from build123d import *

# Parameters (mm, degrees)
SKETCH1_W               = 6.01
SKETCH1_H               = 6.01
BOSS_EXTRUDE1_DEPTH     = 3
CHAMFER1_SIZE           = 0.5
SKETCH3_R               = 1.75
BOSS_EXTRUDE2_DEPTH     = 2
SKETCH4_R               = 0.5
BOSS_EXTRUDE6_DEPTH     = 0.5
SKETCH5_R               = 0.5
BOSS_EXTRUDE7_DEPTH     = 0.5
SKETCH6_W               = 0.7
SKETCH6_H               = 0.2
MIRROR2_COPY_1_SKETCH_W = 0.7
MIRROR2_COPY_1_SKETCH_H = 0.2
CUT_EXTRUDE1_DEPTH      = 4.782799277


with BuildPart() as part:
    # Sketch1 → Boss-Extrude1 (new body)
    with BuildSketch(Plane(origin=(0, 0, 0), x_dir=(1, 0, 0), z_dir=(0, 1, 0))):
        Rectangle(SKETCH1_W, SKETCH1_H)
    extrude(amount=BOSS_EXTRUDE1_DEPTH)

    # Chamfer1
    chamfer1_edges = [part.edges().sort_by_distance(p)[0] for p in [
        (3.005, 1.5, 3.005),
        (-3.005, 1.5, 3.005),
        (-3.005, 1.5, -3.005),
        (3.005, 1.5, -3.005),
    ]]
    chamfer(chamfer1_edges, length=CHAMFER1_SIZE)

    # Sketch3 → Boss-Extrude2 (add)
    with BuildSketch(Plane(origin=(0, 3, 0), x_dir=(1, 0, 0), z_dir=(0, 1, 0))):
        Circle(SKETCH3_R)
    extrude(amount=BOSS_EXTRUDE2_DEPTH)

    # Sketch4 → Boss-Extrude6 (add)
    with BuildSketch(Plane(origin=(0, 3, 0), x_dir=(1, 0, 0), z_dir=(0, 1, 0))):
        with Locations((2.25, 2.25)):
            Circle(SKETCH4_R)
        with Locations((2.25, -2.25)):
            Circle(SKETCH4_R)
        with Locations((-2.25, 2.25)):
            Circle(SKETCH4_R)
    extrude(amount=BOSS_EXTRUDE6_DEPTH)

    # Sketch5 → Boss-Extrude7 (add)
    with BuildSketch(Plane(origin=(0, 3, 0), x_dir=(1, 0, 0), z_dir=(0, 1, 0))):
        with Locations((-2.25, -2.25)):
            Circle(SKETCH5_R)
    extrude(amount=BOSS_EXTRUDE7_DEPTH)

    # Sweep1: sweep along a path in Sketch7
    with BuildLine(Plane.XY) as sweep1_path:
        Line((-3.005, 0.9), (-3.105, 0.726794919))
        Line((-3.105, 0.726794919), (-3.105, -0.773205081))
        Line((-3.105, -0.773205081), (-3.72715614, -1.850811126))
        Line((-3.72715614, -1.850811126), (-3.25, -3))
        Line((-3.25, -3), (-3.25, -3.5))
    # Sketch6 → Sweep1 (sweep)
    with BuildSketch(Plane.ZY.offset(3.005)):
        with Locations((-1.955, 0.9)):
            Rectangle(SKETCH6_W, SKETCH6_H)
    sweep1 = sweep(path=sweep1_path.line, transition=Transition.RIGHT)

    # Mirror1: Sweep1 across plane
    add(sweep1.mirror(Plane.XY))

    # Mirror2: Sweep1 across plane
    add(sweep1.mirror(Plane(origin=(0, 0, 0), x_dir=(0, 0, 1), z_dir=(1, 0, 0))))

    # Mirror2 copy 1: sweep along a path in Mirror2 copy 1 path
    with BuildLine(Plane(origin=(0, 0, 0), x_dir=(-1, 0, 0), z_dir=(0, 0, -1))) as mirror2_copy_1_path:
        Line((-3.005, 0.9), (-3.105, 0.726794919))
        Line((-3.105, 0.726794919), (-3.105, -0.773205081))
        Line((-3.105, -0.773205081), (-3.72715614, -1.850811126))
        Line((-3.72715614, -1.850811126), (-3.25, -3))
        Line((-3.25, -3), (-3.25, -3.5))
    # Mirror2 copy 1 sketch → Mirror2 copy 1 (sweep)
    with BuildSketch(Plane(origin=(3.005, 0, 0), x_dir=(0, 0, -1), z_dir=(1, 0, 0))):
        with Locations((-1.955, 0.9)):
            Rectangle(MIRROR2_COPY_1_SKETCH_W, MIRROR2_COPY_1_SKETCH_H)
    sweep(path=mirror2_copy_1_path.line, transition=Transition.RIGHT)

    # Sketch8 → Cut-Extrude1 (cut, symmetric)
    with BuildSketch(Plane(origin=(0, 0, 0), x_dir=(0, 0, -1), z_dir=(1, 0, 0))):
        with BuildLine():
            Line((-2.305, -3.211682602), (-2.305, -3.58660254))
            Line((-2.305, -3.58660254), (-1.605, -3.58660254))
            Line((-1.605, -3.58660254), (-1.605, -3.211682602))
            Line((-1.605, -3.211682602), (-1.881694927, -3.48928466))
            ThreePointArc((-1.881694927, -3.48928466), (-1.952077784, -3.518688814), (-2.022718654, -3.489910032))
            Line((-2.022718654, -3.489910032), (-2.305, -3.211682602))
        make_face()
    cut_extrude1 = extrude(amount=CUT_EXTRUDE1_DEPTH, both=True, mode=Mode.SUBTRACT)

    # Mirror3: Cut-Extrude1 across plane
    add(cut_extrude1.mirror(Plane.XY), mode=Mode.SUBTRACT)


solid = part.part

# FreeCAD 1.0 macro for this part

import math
import FreeCAD as App
import Part
import Sketcher
from FreeCAD import Vector
Q = App.Units.Quantity


def edges_at(feature, points):
    """Names of the edges that pass closest to the given points."""
    edges = feature.Shape.Edges
    near = lambda p: min(range(len(edges)), key=lambda i: edges[i].distToShape(Part.Vertex(*p))[0])
    return sorted({f"Edge{near(p) + 1}" for p in points})


def add_polygon(sketch, points):
    """Adds a closed chain of lines whose ends are joined by coincident constraints."""
    first, n = sketch.GeometryCount, len(points)
    for a, b in zip(points, points[1:] + points[:1]):
        sketch.addGeometry(Part.LineSegment(App.Vector(*a, 0), App.Vector(*b, 0)), False)
    for i in range(n):
        sketch.addConstraint(Sketcher.Constraint("Coincident", first + i, 2, first + (i + 1) % n, 1))

doc = App.newDocument("Part")
params = doc.addObject("Spreadsheet::Sheet", "Params")
for row, (alias, value) in enumerate([
    ("sketch1_width", "6.01 mm"),
    ("pad1_length", "3 mm"),
    ("chamfer_size", "0.5 mm"),
    ("sketch2_diameter", "3.5 mm"),
    ("pad2_length", "2 mm"),
    ("sketch3_diameter", "1 mm"),
    ("pad3_length", "0.5 mm"),
    ("sketch4_diameter", "1 mm"),
    ("pad4_length", "0.5 mm"),
    ("sketch5_width", "0.2 mm"),
    ("sketch5_height", "0.7 mm"),
    ("sketch6_height", "1.5 mm"),
    ("sketch6_height2", "0.5 mm"),
    ("sketch6_length", "0.2 mm"),
    ("sketch7_width", "0.2 mm"),
    ("sketch7_height", "0.7 mm"),
    ("sketch8_height", "1.5 mm"),
    ("sketch8_height2", "0.5 mm"),
    ("sketch8_length", "0.2 mm"),
    ("sketch9_radius", "0.1 mm"),
    ("sketch9_height", "0.7 mm"),
    ("pocket1_length", "9.565599 mm"),
], start=1):
    params.set(f"A{row}", alias)
    params.set(f"B{row}", "=" + value)
    params.setAlias(f"B{row}", alias)

body = doc.addObject("PartDesign::Body", "Body")

# Sketch on XZ plane
sketch1 = body.newObject("Sketcher::SketchObject", "Sketch")
sketch1.AttachmentSupport = (doc.getObject("XZ_Plane"), [""])
sketch1.MapMode = "FlatFace"
add_polygon(sketch1, [(-3, -3), (-3, 3), (3, 3), (3, -3)])  # lines 0-3
sketch1.addConstraint(Sketcher.Constraint("Vertical", 0))
sketch1.addConstraint(Sketcher.Constraint("Horizontal", 1))
sketch1.addConstraint(Sketcher.Constraint("Vertical", 2))
sketch1.addConstraint(Sketcher.Constraint("Horizontal", 3))
sketch1.addConstraint(Sketcher.Constraint("Symmetric", 0, 2, 2, 2, -1, 1))
sketch1.addConstraint(Sketcher.Constraint("Equal", 3, 0))
sketch1.addConstraint(Sketcher.Constraint("DistanceX", 1, 1, 1, 2, 6.01))
sketch1.setExpression("Constraints[10]", "Params.sketch1_width")
pad1 = body.newObject("PartDesign::Pad", "Pad")
pad1.Profile = sketch1
pad1.setExpression("Length", "Params.pad1_length")
pad1.Reversed = True
doc.recompute()

chamfer = body.newObject("PartDesign::Chamfer", "Chamfer")
chamfer.Base = (pad1, edges_at(pad1, [
    (3.005, 1.5, 3.005),
    (-3.005, 1.5, 3.005),
    (-3.005, 1.5, -3.005),
    (3.005, 1.5, -3.005),
]))
chamfer.setExpression("Size", "Params.chamfer_size")

# Sketch on XZ plane
sketch2 = body.newObject("Sketcher::SketchObject", "Sketch001")
sketch2.AttachmentSupport = (doc.getObject("XZ_Plane"), [""])
sketch2.MapMode = "FlatFace"
sketch2.AttachmentOffset = App.Placement(Vector(0, 0, -3), App.Rotation())
sketch2.addGeometry(Part.Circle(Vector(0, 0, 0), Vector(0, 0, 1), 1.8), False)
sketch2.addConstraint(Sketcher.Constraint("Coincident", 0, 3, -1, 1))
sketch2.addConstraint(Sketcher.Constraint("Diameter", 0, 3.5))
sketch2.setExpression("Constraints[1]", "Params.sketch2_diameter")
pad2 = body.newObject("PartDesign::Pad", "Pad001")
pad2.Profile = sketch2
pad2.setExpression("Length", "Params.pad2_length")
pad2.Reversed = True

# Sketch on XZ plane
sketch3 = body.newObject("Sketcher::SketchObject", "Sketch002")
sketch3.AttachmentSupport = (doc.getObject("XZ_Plane"), [""])
sketch3.MapMode = "FlatFace"
sketch3.AttachmentOffset = App.Placement(Vector(0, 0, -3), App.Rotation())
sketch3.addGeometry(Part.Circle(Vector(2.2, -2.2, 0), Vector(0, 0, 1), 0.5), False)
sketch3.addGeometry(Part.Circle(Vector(2.2, 2.2, 0), Vector(0, 0, 1), 0.5), False)
sketch3.addGeometry(Part.Circle(Vector(-2.2, -2.2, 0), Vector(0, 0, 1), 0.5), False)
sketch3.addConstraint(Sketcher.Constraint("Equal", 0, 1))
sketch3.addConstraint(Sketcher.Constraint("Equal", 1, 2))
sketch3.addConstraint(Sketcher.Constraint("Symmetric", 1, 3, 2, 3, -1, 1))
sketch3.addConstraint(Sketcher.Constraint("Symmetric", 0, 3, 2, 3, -2))
sketch3.addConstraint(Sketcher.Constraint("Diameter", 0, 1.0))
sketch3.addConstraint(Sketcher.Constraint("DistanceY", 0, 3, 1, 3, 4.5))
sketch3.addConstraint(Sketcher.Constraint("DistanceX", 2, 3, 0, 3, 4.5))
sketch3.setExpression("Constraints[4]", "Params.sketch3_diameter")
pad3 = body.newObject("PartDesign::Pad", "Pad002")
pad3.Profile = sketch3
pad3.setExpression("Length", "Params.pad3_length")
pad3.Reversed = True

# Sketch on XZ plane
sketch4 = body.newObject("Sketcher::SketchObject", "Sketch003")
sketch4.AttachmentSupport = (doc.getObject("XZ_Plane"), [""])
sketch4.MapMode = "FlatFace"
sketch4.AttachmentOffset = App.Placement(Vector(0, 0, -3), App.Rotation())
sketch4.addGeometry(Part.Circle(Vector(-2.2, 2.2, 0), Vector(0, 0, 1), 0.5), False)
sketch4.addConstraint(Sketcher.Constraint("Diameter", 0, 1.0))
sketch4.addConstraint(Sketcher.Constraint("DistanceX", 0, 3, -1, 1, 2.25))
sketch4.addConstraint(Sketcher.Constraint("DistanceY", -1, 1, 0, 3, 2.25))
sketch4.setExpression("Constraints[0]", "Params.sketch4_diameter")
pad4 = body.newObject("PartDesign::Pad", "Pad003")
pad4.Profile = sketch4
pad4.setExpression("Length", "Params.pad4_length")
pad4.Reversed = True

# Sketch on YZ plane
sketch5 = body.newObject("Sketcher::SketchObject", "Sketch004")
sketch5.AttachmentSupport = (doc.getObject("YZ_Plane"), [""])
sketch5.MapMode = "FlatFace"
sketch5.AttachmentOffset = App.Placement(Vector(0, 0, -3.005), App.Rotation())
add_polygon(sketch5, [(1, -2.31), (0.8, -2.31), (0.8, -1.6), (1, -1.6)])  # lines 0-3
sketch5.addConstraint(Sketcher.Constraint("Horizontal", 0))
sketch5.addConstraint(Sketcher.Constraint("Vertical", 1))
sketch5.addConstraint(Sketcher.Constraint("Horizontal", 2))
sketch5.addConstraint(Sketcher.Constraint("Vertical", 3))
sketch5.addConstraint(Sketcher.Constraint("DistanceX", 0, 2, 0, 1, 0.2))
sketch5.addConstraint(Sketcher.Constraint("DistanceY", 1, 1, 1, 2, 0.7))
sketch5.addConstraint(Sketcher.Constraint("DistanceX", -1, 1, 2, 2, 1.0))
sketch5.addConstraint(Sketcher.Constraint("DistanceY", 0, 2, -1, 1, 2.305))
sketch5.setExpression("Constraints[8]", "Params.sketch5_width")
sketch5.setExpression("Constraints[9]", "Params.sketch5_height")

# Sketch on XY plane
sketch6 = body.newObject("Sketcher::SketchObject", "Sketch005")
sketch6.AttachmentSupport = (doc.getObject("XY_Plane"), [""])
sketch6.MapMode = "FlatFace"
sketch6.addGeometry(Part.LineSegment(Vector(-3, 0.9, 0), Vector(-3.1, 0.73, 0)), False)
sketch6.addGeometry(Part.LineSegment(Vector(-3.1, 0.73, 0), Vector(-3.1, -0.77, 0)), False)
sketch6.addGeometry(Part.LineSegment(Vector(-3.1, -0.77, 0), Vector(-3.73, -1.85, 0)), False)
sketch6.addGeometry(Part.LineSegment(Vector(-3.73, -1.85, 0), Vector(-3.25, -3, 0)), False)
sketch6.addGeometry(Part.LineSegment(Vector(-3.25, -3, 0), Vector(-3.25, -3.5, 0)), False)
sketch6.addConstraint(Sketcher.Constraint("Coincident", 0, 2, 1, 1))
sketch6.addConstraint(Sketcher.Constraint("Coincident", 1, 2, 2, 1))
sketch6.addConstraint(Sketcher.Constraint("Coincident", 2, 2, 3, 1))
sketch6.addConstraint(Sketcher.Constraint("Coincident", 3, 2, 4, 1))
sketch6.addConstraint(Sketcher.Constraint("Vertical", 1))
sketch6.addConstraint(Sketcher.Constraint("Vertical", 4))
sketch6.addConstraint(Sketcher.Constraint("Parallel", 0, 2))
sketch6.addConstraint(Sketcher.Constraint("Equal", 2, 3))
sketch6.addConstraint(Sketcher.Constraint("Angle", 0, Q("-120 deg")))
sketch6.addConstraint(Sketcher.Constraint("DistanceY", 1, 2, 1, 1, 1.5))
sketch6.addConstraint(Sketcher.Constraint("DistanceY", 4, 2, 4, 1, 0.5))
sketch6.addConstraint(Sketcher.Constraint("DistanceY", 3, 2, -1, 1, 3.0))
sketch6.addConstraint(Sketcher.Constraint("Distance", 0, 0.2))
sketch6.addConstraint(Sketcher.Constraint("DistanceY", -1, 1, 0, 1, 0.9))
sketch6.addConstraint(Sketcher.Constraint("DistanceX", 3, 2, -1, 1, 3.25))
sketch6.addConstraint(Sketcher.Constraint("DistanceX", 0, 1, -1, 1, 3.005))
sketch6.setExpression("Constraints[9]", "Params.sketch6_height")
sketch6.setExpression("Constraints[10]", "Params.sketch6_height2")
sketch6.setExpression("Constraints[12]", "Params.sketch6_length")
doc.recompute()

additivepipe = body.newObject("PartDesign::AdditivePipe", "AdditivePipe")
additivepipe.Profile = sketch5
additivepipe.Spine = (sketch6, ["Edge1", "Edge2", "Edge3", "Edge4", "Edge5"])
additivepipe.Transition = "Right corner"
doc.recompute()

mirrored = body.newObject("PartDesign::Mirrored", "Mirrored")
mirrored.Originals = [additivepipe]
mirrored.MirrorPlane = (doc.getObject("XY_Plane"), [""])
body.Tip = mirrored
doc.recompute()

mirrored2 = body.newObject("PartDesign::Mirrored", "Mirrored001")
mirrored2.Originals = [additivepipe]
mirrored2.MirrorPlane = (doc.getObject("YZ_Plane"), [""])
body.Tip = mirrored2

# Sketch on YZ plane
sketch7 = body.newObject("Sketcher::SketchObject", "Sketch006")
sketch7.AttachmentSupport = (doc.getObject("YZ_Plane"), [""])
sketch7.MapMode = "FlatFace"
sketch7.AttachmentOffset = App.Placement(Vector(0, 0, 3.005), App.Rotation())
add_polygon(sketch7, [(1, 2.31), (0.8, 2.31), (0.8, 1.6), (1, 1.6)])  # lines 0-3
sketch7.addConstraint(Sketcher.Constraint("Horizontal", 0))
sketch7.addConstraint(Sketcher.Constraint("Vertical", 1))
sketch7.addConstraint(Sketcher.Constraint("Horizontal", 2))
sketch7.addConstraint(Sketcher.Constraint("Vertical", 3))
sketch7.addConstraint(Sketcher.Constraint("DistanceX", 0, 2, 0, 1, 0.2))
sketch7.addConstraint(Sketcher.Constraint("DistanceY", 1, 2, 1, 1, 0.7))
sketch7.addConstraint(Sketcher.Constraint("DistanceX", -1, 1, 2, 2, 1.0))
sketch7.addConstraint(Sketcher.Constraint("DistanceY", -1, 1, 0, 2, 2.305))
sketch7.setExpression("Constraints[8]", "Params.sketch7_width")
sketch7.setExpression("Constraints[9]", "Params.sketch7_height")

# Sketch on XY plane
sketch8 = body.newObject("Sketcher::SketchObject", "Sketch007")
sketch8.AttachmentSupport = (doc.getObject("XY_Plane"), [""])
sketch8.MapMode = "FlatFace"
sketch8.addGeometry(Part.LineSegment(Vector(3, 0.9, 0), Vector(3.1, 0.73, 0)), False)
sketch8.addGeometry(Part.LineSegment(Vector(3.1, 0.73, 0), Vector(3.1, -0.77, 0)), False)
sketch8.addGeometry(Part.LineSegment(Vector(3.1, -0.77, 0), Vector(3.73, -1.85, 0)), False)
sketch8.addGeometry(Part.LineSegment(Vector(3.73, -1.85, 0), Vector(3.25, -3, 0)), False)
sketch8.addGeometry(Part.LineSegment(Vector(3.25, -3, 0), Vector(3.25, -3.5, 0)), False)
sketch8.addConstraint(Sketcher.Constraint("Coincident", 0, 2, 1, 1))
sketch8.addConstraint(Sketcher.Constraint("Coincident", 1, 2, 2, 1))
sketch8.addConstraint(Sketcher.Constraint("Coincident", 2, 2, 3, 1))
sketch8.addConstraint(Sketcher.Constraint("Coincident", 3, 2, 4, 1))
sketch8.addConstraint(Sketcher.Constraint("Vertical", 1))
sketch8.addConstraint(Sketcher.Constraint("Vertical", 4))
sketch8.addConstraint(Sketcher.Constraint("Parallel", 0, 2))
sketch8.addConstraint(Sketcher.Constraint("Equal", 2, 3))
sketch8.addConstraint(Sketcher.Constraint("Angle", 0, Q("-60 deg")))
sketch8.addConstraint(Sketcher.Constraint("DistanceY", 1, 2, 1, 1, 1.5))
sketch8.addConstraint(Sketcher.Constraint("DistanceY", 4, 2, 4, 1, 0.5))
sketch8.addConstraint(Sketcher.Constraint("DistanceY", 3, 2, -1, 1, 3.0))
sketch8.addConstraint(Sketcher.Constraint("Distance", 0, 0.2))
sketch8.addConstraint(Sketcher.Constraint("DistanceY", -1, 1, 0, 1, 0.9))
sketch8.addConstraint(Sketcher.Constraint("DistanceX", -1, 1, 3, 2, 3.25))
sketch8.addConstraint(Sketcher.Constraint("DistanceX", -1, 1, 0, 1, 3.005))
sketch8.setExpression("Constraints[9]", "Params.sketch8_height")
sketch8.setExpression("Constraints[10]", "Params.sketch8_height2")
sketch8.setExpression("Constraints[12]", "Params.sketch8_length")
doc.recompute()

additivepipe2 = body.newObject("PartDesign::AdditivePipe", "AdditivePipe001")
additivepipe2.Profile = sketch7
additivepipe2.Spine = (sketch8, ["Edge1", "Edge2", "Edge3", "Edge4", "Edge5"])
additivepipe2.Transition = "Right corner"

# Sketch on YZ plane
sketch9 = body.newObject("Sketcher::SketchObject", "Sketch008")
sketch9.AttachmentSupport = (doc.getObject("YZ_Plane"), [""])
sketch9.MapMode = "FlatFace"
sketch9.addGeometry(Part.LineSegment(Vector(-3.21, 2.31, 0), Vector(-3.59, 2.31, 0)), False)
sketch9.addGeometry(Part.LineSegment(Vector(-3.59, 2.31, 0), Vector(-3.59, 1.6, 0)), False)
sketch9.addGeometry(Part.LineSegment(Vector(-3.59, 1.6, 0), Vector(-3.21, 1.6, 0)), False)
sketch9.addGeometry(Part.LineSegment(Vector(-3.21, 1.6, 0), Vector(-3.49, 1.88, 0)), False)
sketch9.addGeometry(Part.ArcOfCircle(Part.Circle(Vector(-3.42, 1.95, 0), Vector(0, 0, 1), 0.1), math.radians(135), math.radians(225)), False)
sketch9.addGeometry(Part.LineSegment(Vector(-3.49, 2.02, 0), Vector(-3.21, 2.31, 0)), False)
sketch9.addConstraint(Sketcher.Constraint("Coincident", 0, 2, 1, 1))
sketch9.addConstraint(Sketcher.Constraint("Coincident", 1, 2, 2, 1))
sketch9.addConstraint(Sketcher.Constraint("Coincident", 2, 2, 3, 1))
sketch9.addConstraint(Sketcher.Constraint("Tangent", 3, 2, 4, 2))
sketch9.addConstraint(Sketcher.Constraint("Tangent", 4, 1, 5, 1))
sketch9.addConstraint(Sketcher.Constraint("Coincident", 5, 2, 0, 1))
sketch9.addConstraint(Sketcher.Constraint("Horizontal", 0))
sketch9.addConstraint(Sketcher.Constraint("Vertical", 1))
sketch9.addConstraint(Sketcher.Constraint("Horizontal", 2))
sketch9.addConstraint(Sketcher.Constraint("Vertical", 2, 2, 5, 2))
sketch9.addConstraint(Sketcher.Constraint("Radius", 4, 0.1))
sketch9.addConstraint(Sketcher.Constraint("DistanceY", 1, 2, 1, 1, 0.7))
sketch9.addConstraint(Sketcher.Constraint("DistanceY", -1, 1, 0, 2, 2.305))
sketch9.addConstraint(Sketcher.Constraint("DistanceX", 0, 2, 0, 1, 0.37492))
sketch9.addConstraint(Sketcher.Constraint("Distance", 5, 0.39635))
sketch9.addConstraint(Sketcher.Constraint("DistanceX", 4, 3, -1, 1, 3.41869))
sketch9.addConstraint(Sketcher.Constraint("DistanceY", -1, 1, 4, 3, 1.952521))
sketch9.setExpression("Constraints[10]", "Params.sketch9_radius")
sketch9.setExpression("Constraints[11]", "Params.sketch9_height")
pocket1 = body.newObject("PartDesign::Pocket", "Pocket")
pocket1.Profile = sketch9
pocket1.setExpression("Length", "Params.pocket1_length")
pocket1.Midplane = True
doc.recompute()

mirrored3 = body.newObject("PartDesign::Mirrored", "Mirrored002")
mirrored3.Originals = [pocket1]
mirrored3.MirrorPlane = (doc.getObject("XY_Plane"), [""])
body.Tip = mirrored3

doc.recompute()
